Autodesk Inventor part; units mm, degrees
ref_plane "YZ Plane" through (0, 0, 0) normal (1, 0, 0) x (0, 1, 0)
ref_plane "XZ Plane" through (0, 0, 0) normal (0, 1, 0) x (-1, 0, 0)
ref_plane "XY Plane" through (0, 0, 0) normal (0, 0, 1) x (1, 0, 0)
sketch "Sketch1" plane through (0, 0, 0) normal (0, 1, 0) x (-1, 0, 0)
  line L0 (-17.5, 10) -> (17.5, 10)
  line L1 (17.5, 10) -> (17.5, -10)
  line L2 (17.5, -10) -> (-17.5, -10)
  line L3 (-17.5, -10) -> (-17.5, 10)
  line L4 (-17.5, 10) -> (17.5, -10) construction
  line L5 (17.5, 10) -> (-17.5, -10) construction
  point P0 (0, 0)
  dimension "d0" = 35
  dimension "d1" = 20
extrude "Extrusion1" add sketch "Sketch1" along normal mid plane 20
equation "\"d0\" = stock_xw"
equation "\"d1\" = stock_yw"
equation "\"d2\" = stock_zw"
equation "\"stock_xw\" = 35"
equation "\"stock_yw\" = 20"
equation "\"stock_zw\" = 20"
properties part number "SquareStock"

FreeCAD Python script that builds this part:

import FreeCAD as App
import Part
import Sketcher

V = App.Vector


def add_polygon(sketch, points):
    """Adds a closed chain of lines whose ends are joined by coincident constraints."""
    first, n = sketch.GeometryCount, len(points)
    for a, b in zip(points, points[1:] + points[:1]):
        sketch.addGeometry(Part.LineSegment(App.Vector(*a, 0), App.Vector(*b, 0)), False)
    for i in range(n):
        sketch.addConstraint(Sketcher.Constraint("Coincident", first + i, 2, first + (i + 1) % n, 1))

doc = App.newDocument("Part")
body = doc.addObject("PartDesign::Body", "Body")

# Sketch on XZ plane
sketch1 = body.newObject("Sketcher::SketchObject", "Sketch")
sketch1.AttachmentSupport = (doc.getObject("XZ_Plane"), [""])
sketch1.MapMode = "FlatFace"
add_polygon(sketch1, [(-18, 10), (18, 10), (18, -10), (-18, -10)])  # lines 0-3
sketch1.addConstraint(Sketcher.Constraint("Horizontal", 0))
sketch1.addConstraint(Sketcher.Constraint("Vertical", 1))
sketch1.addConstraint(Sketcher.Constraint("Horizontal", 2))
sketch1.addConstraint(Sketcher.Constraint("Vertical", 3))
sketch1.addConstraint(Sketcher.Constraint("Symmetric", 0, 2, 2, 2, -1, 1))
sketch1.addConstraint(Sketcher.Constraint("DistanceX", 0, 1, 0, 2, 35.0))
sketch1.addConstraint(Sketcher.Constraint("DistanceY", 1, 2, 1, 1, 20.0))
pad1 = body.newObject("PartDesign::Pad", "Pad")
pad1.Profile = sketch1
pad1.Length = 20
pad1.Midplane = True

doc.recompute()
